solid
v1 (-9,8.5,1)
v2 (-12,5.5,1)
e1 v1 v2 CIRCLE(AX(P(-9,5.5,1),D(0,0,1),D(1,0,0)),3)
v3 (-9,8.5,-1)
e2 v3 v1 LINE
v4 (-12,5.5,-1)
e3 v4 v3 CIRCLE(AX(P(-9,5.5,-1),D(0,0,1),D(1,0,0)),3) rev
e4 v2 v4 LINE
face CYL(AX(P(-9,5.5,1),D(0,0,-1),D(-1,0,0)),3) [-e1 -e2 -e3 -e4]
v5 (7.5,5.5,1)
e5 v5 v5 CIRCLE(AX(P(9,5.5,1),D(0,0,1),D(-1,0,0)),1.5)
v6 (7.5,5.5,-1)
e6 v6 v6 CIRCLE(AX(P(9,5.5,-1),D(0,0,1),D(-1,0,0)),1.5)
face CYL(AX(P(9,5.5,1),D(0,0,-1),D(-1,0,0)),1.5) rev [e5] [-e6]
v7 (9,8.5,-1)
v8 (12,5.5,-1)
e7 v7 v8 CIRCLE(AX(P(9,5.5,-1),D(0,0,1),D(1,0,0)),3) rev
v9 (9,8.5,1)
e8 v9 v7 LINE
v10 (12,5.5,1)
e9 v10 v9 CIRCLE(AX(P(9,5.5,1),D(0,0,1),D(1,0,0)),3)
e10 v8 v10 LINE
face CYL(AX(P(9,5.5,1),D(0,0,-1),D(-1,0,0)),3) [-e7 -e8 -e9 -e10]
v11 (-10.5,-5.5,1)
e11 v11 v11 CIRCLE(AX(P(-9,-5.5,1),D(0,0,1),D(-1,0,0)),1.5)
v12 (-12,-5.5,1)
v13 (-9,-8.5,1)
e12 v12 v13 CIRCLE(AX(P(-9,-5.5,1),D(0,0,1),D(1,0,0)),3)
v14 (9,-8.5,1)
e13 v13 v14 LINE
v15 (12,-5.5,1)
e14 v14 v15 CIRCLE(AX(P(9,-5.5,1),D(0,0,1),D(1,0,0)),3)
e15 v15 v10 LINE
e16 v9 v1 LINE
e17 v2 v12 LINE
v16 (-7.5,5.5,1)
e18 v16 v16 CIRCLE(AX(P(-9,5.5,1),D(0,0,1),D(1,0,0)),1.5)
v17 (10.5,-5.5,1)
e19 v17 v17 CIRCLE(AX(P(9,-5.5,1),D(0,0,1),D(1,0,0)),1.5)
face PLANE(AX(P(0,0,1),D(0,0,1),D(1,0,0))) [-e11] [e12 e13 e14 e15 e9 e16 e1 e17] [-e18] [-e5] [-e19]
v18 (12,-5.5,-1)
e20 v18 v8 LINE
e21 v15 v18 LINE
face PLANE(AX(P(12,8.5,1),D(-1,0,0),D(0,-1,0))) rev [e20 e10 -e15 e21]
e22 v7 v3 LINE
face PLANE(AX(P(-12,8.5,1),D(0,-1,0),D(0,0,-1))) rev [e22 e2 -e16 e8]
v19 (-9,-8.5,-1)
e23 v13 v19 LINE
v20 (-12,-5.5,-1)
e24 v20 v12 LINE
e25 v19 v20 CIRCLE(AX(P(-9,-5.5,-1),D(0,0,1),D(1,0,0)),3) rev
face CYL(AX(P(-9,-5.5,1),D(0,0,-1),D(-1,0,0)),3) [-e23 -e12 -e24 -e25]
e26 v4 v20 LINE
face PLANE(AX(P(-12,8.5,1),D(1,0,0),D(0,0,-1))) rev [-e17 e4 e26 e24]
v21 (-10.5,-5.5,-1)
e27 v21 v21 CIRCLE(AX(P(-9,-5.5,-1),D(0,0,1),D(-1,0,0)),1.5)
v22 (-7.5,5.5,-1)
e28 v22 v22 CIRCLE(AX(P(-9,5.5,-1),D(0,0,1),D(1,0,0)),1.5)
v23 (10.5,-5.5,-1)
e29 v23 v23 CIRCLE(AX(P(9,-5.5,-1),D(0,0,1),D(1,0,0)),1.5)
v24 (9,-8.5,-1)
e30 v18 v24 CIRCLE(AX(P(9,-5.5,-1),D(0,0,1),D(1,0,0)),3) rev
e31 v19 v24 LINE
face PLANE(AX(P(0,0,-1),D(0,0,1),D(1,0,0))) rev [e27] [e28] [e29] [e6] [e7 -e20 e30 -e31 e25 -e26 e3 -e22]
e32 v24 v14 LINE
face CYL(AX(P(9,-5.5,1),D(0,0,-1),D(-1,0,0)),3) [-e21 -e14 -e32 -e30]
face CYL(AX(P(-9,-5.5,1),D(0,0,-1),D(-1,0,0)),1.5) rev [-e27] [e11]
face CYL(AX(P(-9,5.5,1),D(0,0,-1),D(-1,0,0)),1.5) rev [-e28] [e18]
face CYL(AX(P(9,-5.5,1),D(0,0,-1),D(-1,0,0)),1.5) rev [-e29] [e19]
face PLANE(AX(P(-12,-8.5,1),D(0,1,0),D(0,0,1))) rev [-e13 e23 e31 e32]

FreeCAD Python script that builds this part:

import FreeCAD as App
import Part
import Sketcher

V = App.Vector
Q = App.Units.Quantity


def edges_at(feature, points):
    """Names of the edges that pass closest to the given points."""
    edges = feature.Shape.Edges
    near = lambda p: min(range(len(edges)), key=lambda i: edges[i].distToShape(Part.Vertex(*p))[0])
    return sorted({f"Edge{near(p) + 1}" for p in points})

doc = App.newDocument("Part")
body = doc.addObject("PartDesign::Body", "Body")

# Sketch on XY plane
sketch1 = body.newObject("Sketcher::SketchObject", "Sketch")
sketch1.AttachmentSupport = (doc.getObject("XY_Plane"), [""])
sketch1.MapMode = "FlatFace"
sketch1.addGeometry([
    Part.LineSegment(V(-12, 8.5, 0), V(-12, -8.5, 0)),  # 0
    Part.LineSegment(V(-12, -8.5, 0), V(12, -8.5, 0)),  # 1
    Part.LineSegment(V(12, -8.5, 0), V(12, 8.5, 0)),  # 2
    Part.LineSegment(V(12, 8.5, 0), V(-12, 8.5, 0)),  # 3
    Part.Circle(V(-9, -5.5, 0), V(0, 0, 1), 1.5),  # 4
    Part.Circle(V(9, -5.5, 0), V(0, 0, 1), 1.5),  # 5
    Part.Circle(V(-9, 5.5, 0), V(0, 0, 1), 1.5),  # 6
    Part.Circle(V(9, 5.5, 0), V(0, 0, 1), 1.5),  # 7
], False)
sketch1.addConstraint([
    Sketcher.Constraint("Coincident", 0, 2, 1, 1),
    Sketcher.Constraint("Coincident", 1, 2, 2, 1),
    Sketcher.Constraint("Coincident", 2, 2, 3, 1),
    Sketcher.Constraint("Coincident", 3, 2, 0, 1),
    Sketcher.Constraint("Vertical", 0),
    Sketcher.Constraint("Horizontal", 1),
    Sketcher.Constraint("Vertical", 2),
    Sketcher.Constraint("Horizontal", 3),
    Sketcher.Constraint("Equal", 4, 5),
    Sketcher.Constraint("Equal", 5, 6),
    Sketcher.Constraint("Equal", 6, 7),
    Sketcher.Constraint("Symmetric", 5, 3, 6, 3, -1, 1),
    Sketcher.Constraint("Symmetric", 4, 3, 7, 3, -1, 1),
    Sketcher.Constraint("Symmetric", 0, 2, 2, 2, -1, 1),
    Sketcher.Constraint("Symmetric", 4, 3, 5, 3, -2),
    Sketcher.Constraint("Diameter", 4, Q("3 mm")),
    Sketcher.Constraint("DistanceX", 1, 1, 1, 2, Q("24 mm")),
    Sketcher.Constraint("DistanceY", 0, 2, 0, 1, Q("17 mm")),
    Sketcher.Constraint("DistanceX", 4, 3, -1, 1, Q("9 mm")),
    Sketcher.Constraint("DistanceY", 4, 3, 6, 3, Q("11 mm")),
])
pad1 = body.newObject("PartDesign::Pad", "Pad")
pad1.Profile = sketch1
pad1.Length = 2
pad1.Midplane = True
doc.recompute()

fillet = body.newObject("PartDesign::Fillet", "Fillet")
fillet.Base = (pad1, edges_at(pad1, [
    (12, -8.5, 0),
    (-12, -8.5, 0),
    (-12, 8.5, 0),
    (12, 8.5, 0),
]))
fillet.Radius = 3

doc.recompute()
